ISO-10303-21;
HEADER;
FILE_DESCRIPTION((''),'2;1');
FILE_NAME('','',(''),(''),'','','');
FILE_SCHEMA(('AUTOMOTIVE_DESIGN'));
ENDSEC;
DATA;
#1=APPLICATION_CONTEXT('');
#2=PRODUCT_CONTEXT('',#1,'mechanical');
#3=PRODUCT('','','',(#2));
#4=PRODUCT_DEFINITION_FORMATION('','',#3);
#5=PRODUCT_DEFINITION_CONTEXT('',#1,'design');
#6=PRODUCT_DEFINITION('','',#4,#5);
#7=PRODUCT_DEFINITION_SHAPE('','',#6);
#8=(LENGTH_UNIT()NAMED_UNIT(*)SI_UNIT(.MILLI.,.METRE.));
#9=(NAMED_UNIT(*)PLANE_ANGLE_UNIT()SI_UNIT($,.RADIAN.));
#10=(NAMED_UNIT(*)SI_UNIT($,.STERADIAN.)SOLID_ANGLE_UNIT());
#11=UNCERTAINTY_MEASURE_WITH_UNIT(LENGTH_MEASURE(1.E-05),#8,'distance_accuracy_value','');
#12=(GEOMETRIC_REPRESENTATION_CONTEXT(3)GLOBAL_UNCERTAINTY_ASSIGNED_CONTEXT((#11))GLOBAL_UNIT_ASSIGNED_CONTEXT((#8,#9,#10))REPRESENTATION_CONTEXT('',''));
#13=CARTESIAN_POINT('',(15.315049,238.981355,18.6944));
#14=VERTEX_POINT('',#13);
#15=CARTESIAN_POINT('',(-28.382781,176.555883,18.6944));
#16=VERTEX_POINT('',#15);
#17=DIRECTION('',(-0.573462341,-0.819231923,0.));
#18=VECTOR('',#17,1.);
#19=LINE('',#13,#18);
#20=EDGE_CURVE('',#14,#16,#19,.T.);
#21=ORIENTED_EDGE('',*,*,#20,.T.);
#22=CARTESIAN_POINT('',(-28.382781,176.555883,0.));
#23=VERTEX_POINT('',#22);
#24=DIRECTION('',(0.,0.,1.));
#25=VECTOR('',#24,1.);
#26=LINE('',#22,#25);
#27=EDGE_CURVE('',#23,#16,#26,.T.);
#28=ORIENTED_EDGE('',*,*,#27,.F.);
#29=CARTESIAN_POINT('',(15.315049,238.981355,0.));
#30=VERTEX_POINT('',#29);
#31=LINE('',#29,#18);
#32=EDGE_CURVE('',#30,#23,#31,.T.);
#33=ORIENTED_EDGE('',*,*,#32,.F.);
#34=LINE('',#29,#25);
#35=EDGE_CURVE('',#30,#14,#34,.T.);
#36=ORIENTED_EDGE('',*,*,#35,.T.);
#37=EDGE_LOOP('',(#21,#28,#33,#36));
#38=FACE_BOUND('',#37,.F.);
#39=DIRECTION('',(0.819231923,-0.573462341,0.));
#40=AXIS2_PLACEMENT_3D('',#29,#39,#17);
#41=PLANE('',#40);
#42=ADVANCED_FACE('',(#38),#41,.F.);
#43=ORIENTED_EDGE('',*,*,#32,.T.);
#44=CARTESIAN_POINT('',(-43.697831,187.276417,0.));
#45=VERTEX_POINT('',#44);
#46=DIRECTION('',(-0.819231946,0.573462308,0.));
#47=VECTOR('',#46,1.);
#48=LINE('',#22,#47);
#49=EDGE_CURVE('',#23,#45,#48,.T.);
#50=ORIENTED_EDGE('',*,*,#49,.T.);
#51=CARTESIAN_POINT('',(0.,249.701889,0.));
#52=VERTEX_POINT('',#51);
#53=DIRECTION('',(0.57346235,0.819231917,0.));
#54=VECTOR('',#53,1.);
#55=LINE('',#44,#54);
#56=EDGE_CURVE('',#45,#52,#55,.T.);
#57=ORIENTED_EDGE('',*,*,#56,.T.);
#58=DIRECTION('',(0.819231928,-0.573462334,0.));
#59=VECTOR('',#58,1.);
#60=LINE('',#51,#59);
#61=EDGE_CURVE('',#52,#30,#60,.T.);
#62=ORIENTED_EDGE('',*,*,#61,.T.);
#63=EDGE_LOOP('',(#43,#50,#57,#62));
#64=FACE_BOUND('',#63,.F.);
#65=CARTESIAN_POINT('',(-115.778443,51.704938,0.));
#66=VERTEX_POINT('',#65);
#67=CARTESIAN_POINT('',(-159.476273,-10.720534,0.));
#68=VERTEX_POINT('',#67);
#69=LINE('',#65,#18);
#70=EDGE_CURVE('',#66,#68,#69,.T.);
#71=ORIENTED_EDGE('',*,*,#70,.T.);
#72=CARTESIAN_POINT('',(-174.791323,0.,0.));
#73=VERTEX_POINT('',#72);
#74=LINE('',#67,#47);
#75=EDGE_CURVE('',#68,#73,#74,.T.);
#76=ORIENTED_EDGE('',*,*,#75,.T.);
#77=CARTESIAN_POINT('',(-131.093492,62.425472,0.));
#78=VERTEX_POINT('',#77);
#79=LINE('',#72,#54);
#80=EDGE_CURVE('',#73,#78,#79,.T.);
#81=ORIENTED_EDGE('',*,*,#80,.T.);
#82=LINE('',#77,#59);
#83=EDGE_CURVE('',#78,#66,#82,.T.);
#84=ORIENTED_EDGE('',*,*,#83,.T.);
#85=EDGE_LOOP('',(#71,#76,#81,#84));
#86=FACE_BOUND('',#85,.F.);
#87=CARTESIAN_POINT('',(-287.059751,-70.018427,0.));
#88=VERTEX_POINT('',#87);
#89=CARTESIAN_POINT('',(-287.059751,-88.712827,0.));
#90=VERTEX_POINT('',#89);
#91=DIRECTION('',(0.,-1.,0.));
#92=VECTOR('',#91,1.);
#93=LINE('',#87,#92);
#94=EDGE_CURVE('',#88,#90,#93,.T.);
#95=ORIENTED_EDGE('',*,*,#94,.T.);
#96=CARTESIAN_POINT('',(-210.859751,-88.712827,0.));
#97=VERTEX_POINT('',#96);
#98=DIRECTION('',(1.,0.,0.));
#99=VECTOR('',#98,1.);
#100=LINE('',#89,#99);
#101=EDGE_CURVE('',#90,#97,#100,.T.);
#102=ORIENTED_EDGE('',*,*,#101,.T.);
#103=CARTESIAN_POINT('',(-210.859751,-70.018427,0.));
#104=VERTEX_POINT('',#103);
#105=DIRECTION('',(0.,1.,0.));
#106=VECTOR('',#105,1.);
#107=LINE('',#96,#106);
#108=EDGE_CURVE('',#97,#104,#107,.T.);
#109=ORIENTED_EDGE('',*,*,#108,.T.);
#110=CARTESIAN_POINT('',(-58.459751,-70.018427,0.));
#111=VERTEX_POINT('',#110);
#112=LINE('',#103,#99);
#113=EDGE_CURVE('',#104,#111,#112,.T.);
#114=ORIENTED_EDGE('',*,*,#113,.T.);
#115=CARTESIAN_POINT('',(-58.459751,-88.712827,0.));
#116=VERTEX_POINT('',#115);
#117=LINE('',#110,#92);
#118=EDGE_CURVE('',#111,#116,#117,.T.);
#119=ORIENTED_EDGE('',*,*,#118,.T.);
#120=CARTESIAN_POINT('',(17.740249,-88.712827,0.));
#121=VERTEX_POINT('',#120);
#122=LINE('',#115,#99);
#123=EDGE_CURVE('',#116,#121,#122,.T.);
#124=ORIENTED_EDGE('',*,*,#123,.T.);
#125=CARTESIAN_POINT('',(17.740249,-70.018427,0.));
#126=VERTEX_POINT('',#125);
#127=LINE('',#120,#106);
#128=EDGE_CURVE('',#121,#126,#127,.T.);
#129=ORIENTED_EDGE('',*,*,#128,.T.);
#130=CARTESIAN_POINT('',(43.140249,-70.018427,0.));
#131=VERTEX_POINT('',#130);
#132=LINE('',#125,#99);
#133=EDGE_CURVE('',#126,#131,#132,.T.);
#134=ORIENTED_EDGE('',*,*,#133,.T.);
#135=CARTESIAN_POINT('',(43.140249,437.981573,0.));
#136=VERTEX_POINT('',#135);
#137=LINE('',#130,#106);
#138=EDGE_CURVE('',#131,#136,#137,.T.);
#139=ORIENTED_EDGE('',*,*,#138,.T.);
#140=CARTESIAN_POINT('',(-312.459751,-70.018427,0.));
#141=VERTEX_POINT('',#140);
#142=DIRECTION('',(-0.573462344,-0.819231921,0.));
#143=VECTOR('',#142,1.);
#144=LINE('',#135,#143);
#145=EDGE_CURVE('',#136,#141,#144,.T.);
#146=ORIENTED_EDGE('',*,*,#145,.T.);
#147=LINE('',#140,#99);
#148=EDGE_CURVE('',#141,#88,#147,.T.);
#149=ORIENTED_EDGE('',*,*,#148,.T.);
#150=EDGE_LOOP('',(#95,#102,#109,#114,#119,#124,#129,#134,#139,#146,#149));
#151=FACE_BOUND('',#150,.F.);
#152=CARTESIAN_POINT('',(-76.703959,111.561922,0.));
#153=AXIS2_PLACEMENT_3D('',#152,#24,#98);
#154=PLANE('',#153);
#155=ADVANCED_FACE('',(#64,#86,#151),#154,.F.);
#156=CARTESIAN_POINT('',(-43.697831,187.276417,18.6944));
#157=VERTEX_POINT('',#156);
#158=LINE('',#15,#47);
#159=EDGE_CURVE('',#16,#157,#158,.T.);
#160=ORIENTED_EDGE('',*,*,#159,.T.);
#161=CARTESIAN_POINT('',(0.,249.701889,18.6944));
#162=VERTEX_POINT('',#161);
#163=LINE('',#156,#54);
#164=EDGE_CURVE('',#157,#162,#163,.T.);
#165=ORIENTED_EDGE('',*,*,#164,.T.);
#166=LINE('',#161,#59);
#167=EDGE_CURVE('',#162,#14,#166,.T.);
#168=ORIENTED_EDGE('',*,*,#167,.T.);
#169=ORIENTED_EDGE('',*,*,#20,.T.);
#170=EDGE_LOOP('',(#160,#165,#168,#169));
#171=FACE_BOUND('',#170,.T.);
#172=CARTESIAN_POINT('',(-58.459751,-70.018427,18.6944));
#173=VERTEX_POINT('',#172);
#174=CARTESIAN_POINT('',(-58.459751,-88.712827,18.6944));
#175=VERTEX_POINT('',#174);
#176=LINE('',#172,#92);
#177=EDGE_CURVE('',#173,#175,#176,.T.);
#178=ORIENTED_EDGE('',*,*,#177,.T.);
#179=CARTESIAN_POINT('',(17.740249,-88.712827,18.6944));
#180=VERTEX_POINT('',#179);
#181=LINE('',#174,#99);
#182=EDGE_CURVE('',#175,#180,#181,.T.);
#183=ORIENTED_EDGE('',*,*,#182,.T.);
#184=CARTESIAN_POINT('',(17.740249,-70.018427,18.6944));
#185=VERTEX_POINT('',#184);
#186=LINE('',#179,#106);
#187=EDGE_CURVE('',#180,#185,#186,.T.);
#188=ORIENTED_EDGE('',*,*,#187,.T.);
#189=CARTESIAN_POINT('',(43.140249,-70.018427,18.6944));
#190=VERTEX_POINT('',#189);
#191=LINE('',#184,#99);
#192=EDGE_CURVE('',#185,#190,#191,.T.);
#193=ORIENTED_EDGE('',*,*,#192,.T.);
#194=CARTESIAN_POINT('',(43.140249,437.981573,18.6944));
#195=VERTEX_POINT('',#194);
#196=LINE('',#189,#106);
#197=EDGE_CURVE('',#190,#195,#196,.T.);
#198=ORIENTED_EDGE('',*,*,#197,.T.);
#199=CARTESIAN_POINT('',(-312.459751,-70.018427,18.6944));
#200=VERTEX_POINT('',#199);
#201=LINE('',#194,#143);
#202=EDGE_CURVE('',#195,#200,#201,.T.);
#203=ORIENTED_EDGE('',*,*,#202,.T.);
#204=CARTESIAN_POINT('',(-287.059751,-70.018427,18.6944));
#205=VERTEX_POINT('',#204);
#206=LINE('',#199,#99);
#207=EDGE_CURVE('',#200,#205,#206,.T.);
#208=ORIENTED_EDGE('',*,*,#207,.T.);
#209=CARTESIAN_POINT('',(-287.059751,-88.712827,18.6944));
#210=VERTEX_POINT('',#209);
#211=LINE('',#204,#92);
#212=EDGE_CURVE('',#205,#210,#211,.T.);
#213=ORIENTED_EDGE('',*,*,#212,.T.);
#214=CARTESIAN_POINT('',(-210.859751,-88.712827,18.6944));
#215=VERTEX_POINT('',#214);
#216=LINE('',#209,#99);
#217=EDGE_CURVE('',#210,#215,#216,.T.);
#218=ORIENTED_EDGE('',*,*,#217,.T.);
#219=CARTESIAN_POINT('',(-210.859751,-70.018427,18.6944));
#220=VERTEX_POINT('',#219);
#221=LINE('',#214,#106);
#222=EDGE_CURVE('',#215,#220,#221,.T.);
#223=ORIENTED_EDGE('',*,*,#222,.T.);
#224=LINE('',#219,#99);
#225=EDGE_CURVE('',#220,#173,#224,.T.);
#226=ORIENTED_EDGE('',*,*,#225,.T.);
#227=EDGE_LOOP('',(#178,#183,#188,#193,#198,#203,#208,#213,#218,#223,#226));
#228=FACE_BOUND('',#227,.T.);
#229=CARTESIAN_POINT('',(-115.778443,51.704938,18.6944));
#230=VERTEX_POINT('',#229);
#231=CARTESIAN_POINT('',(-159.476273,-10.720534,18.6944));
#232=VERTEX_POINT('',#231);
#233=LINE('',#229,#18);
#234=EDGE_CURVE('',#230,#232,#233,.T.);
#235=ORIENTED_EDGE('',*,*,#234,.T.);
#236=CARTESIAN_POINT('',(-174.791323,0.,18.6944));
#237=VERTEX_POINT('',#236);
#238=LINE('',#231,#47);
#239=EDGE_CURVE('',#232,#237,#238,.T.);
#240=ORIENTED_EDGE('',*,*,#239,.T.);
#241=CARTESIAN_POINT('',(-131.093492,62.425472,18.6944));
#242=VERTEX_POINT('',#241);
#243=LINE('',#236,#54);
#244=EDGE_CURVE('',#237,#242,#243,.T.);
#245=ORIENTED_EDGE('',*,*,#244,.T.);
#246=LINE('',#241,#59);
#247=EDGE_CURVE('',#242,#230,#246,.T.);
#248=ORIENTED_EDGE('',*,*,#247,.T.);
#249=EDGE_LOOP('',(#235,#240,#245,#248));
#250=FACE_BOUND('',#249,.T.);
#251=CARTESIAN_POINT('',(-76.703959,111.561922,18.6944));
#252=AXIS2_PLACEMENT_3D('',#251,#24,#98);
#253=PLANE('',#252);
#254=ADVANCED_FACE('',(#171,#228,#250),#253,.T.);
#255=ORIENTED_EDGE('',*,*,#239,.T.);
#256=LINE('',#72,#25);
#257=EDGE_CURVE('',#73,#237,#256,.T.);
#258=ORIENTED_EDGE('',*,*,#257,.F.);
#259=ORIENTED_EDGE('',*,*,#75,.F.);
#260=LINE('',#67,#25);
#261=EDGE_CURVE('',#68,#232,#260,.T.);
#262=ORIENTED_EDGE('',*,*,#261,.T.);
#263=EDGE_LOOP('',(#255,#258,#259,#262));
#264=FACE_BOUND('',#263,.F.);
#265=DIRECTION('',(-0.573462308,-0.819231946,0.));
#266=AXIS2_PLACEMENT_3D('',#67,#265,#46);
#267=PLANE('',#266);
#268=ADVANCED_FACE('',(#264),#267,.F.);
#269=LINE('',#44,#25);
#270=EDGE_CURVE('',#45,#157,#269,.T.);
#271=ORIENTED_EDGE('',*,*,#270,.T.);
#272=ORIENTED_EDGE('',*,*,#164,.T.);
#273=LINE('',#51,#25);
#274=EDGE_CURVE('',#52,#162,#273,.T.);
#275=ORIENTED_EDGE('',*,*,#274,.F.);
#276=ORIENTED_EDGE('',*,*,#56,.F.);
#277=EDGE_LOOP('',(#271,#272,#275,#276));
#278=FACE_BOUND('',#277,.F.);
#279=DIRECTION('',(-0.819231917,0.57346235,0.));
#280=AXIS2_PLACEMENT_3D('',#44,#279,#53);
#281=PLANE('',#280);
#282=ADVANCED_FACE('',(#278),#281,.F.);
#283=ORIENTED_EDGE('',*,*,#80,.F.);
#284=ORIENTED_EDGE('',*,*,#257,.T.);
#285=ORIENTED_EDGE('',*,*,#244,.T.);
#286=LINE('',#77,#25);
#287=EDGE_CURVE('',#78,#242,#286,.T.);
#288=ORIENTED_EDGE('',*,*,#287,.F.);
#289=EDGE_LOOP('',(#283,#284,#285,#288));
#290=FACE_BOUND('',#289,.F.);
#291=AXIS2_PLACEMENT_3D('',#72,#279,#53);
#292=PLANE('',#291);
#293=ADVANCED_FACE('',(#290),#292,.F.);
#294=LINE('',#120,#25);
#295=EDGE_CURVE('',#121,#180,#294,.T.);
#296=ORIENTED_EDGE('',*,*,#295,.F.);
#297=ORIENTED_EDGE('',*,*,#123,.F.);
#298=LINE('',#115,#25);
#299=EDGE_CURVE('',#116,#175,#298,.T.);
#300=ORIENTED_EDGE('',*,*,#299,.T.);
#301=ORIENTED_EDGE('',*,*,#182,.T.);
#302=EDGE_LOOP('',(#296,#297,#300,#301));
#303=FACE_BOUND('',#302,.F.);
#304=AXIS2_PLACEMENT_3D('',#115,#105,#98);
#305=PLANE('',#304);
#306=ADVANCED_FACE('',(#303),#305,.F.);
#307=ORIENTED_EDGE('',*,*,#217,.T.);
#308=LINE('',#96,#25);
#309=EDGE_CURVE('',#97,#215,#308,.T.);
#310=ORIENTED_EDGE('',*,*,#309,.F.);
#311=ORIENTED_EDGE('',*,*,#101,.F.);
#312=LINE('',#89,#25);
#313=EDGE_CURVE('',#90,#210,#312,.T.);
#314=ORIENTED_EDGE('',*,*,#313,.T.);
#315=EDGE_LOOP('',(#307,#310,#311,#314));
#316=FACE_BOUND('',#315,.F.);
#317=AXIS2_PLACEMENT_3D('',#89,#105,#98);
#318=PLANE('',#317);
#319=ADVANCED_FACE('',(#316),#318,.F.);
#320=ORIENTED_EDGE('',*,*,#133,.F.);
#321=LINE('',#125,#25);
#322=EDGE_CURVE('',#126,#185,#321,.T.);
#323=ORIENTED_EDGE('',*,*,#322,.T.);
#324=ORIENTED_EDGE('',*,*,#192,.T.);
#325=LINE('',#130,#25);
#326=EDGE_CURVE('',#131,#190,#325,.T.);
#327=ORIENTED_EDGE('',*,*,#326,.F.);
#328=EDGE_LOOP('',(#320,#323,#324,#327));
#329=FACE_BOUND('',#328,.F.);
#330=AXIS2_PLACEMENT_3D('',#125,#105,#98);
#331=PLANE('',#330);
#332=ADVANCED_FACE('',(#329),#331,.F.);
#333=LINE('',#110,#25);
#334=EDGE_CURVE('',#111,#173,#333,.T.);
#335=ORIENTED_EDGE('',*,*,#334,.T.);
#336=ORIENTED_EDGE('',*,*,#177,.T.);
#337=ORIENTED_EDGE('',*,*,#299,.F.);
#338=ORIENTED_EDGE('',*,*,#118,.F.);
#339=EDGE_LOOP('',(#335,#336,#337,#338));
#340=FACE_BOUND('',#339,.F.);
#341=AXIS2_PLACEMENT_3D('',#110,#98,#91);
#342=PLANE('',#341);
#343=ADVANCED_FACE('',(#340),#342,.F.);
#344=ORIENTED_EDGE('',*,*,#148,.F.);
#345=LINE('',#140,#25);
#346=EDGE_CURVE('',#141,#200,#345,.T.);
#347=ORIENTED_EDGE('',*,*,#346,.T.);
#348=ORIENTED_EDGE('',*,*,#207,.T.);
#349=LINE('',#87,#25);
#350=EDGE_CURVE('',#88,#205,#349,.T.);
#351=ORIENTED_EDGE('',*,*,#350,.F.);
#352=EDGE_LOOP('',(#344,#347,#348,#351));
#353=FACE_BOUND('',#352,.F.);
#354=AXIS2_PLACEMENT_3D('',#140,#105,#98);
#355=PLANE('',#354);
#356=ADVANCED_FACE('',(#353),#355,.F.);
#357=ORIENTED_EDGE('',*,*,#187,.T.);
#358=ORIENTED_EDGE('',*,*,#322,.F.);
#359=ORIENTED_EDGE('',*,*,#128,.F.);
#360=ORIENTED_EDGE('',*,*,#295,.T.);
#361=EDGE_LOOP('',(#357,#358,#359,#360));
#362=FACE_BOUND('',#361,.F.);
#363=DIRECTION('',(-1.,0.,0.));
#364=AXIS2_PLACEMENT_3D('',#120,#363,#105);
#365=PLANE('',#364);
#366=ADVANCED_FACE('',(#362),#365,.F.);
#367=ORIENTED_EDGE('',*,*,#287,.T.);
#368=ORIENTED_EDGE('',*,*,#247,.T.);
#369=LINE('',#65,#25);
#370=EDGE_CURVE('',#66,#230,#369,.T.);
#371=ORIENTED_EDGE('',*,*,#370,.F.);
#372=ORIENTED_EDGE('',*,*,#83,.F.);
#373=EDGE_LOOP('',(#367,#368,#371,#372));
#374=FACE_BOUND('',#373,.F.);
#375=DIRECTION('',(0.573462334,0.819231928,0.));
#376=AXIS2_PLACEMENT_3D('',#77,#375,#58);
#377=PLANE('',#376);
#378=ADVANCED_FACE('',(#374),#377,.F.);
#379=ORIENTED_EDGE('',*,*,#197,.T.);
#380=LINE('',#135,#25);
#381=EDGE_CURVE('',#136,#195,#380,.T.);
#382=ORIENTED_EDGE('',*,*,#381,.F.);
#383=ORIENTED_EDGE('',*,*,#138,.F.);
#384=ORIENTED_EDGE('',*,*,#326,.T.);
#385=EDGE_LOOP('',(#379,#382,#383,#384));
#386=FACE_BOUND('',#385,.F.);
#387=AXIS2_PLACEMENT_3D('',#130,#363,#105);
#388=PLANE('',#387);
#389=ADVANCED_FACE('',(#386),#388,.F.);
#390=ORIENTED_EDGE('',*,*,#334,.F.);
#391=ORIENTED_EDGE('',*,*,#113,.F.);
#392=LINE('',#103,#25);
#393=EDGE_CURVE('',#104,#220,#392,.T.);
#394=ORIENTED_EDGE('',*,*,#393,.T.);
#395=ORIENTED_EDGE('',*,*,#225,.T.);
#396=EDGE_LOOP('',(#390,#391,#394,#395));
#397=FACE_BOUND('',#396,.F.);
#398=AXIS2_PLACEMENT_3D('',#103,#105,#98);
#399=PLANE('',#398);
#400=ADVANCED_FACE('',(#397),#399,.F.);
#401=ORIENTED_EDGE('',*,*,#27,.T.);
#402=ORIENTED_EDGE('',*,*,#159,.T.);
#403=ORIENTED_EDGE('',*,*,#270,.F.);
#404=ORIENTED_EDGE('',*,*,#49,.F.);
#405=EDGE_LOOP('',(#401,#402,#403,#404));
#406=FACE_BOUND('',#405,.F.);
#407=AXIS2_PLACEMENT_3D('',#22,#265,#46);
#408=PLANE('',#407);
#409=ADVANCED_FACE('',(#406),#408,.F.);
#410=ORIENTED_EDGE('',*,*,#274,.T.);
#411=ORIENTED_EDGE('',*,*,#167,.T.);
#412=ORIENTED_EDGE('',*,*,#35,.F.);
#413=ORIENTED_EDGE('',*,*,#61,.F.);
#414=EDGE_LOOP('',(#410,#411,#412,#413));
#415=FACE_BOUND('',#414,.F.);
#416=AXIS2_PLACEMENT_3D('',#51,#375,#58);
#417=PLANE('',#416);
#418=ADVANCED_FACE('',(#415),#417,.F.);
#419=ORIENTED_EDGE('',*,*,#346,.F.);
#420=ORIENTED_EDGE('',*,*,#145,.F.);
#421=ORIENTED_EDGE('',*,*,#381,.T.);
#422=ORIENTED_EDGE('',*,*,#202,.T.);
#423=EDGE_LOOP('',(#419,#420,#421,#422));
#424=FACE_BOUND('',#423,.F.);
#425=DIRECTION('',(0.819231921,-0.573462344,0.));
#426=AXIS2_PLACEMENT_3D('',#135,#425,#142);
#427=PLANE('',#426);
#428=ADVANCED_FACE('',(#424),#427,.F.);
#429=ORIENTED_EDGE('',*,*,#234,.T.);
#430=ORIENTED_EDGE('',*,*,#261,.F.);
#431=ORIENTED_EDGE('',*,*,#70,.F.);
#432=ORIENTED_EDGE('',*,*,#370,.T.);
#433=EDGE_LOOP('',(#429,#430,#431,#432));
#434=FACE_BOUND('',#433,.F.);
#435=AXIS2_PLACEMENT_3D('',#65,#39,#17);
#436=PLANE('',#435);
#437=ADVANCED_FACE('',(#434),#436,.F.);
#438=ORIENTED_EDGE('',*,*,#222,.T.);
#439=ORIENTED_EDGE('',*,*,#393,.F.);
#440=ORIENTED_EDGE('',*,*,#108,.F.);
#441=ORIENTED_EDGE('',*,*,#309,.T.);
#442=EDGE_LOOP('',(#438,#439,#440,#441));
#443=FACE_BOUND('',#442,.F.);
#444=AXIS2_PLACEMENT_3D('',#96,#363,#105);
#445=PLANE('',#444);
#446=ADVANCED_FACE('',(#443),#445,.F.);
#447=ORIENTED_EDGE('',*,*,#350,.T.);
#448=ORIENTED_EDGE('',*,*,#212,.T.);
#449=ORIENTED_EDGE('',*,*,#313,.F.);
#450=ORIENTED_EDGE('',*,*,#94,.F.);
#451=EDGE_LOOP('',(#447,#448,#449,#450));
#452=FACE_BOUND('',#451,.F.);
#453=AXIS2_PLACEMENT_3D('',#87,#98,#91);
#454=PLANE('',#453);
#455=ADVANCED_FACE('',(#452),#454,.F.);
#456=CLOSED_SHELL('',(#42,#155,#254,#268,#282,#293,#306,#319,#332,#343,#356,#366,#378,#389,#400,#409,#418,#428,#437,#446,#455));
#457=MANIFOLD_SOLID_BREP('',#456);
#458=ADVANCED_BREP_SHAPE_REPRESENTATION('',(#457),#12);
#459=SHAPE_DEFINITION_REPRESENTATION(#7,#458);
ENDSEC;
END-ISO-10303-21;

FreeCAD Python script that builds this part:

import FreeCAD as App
import Part
import Sketcher
from FreeCAD import Vector
Q = App.Units.Quantity


def add_polygon(sketch, points):
    """Adds a closed chain of lines whose ends are joined by coincident constraints."""
    first, n = sketch.GeometryCount, len(points)
    for a, b in zip(points, points[1:] + points[:1]):
        sketch.addGeometry(Part.LineSegment(App.Vector(*a, 0), App.Vector(*b, 0)), False)
    for i in range(n):
        sketch.addConstraint(Sketcher.Constraint("Coincident", first + i, 2, first + (i + 1) % n, 1))

doc = App.newDocument("Part")
body = doc.addObject("PartDesign::Body", "Body")

sketch1 = body.newObject("Sketcher::SketchObject", "Sketch")
sketch1.AttachmentSupport = (doc.getObject("XY_Plane"), [""])
sketch1.MapMode = "FlatFace"
add_polygon(sketch1, [(43, 438), (-312, -70), (-287, -70), (-287, -89), (-211, -89), (-211, -70), (-58, -70), (-58, -89), (18, -89), (18, -70), (43, -70)])
add_polygon(sketch1, [(-116, 52), (-159, -11), (-175, 0), (-131, 62)])
add_polygon(sketch1, [(-44, 187), (0, 250), (15, 239), (-28, 177)])
sketch1.addConstraint(Sketcher.Constraint("Horizontal", 1))
sketch1.addConstraint(Sketcher.Constraint("Vertical", 2))
sketch1.addConstraint(Sketcher.Constraint("Horizontal", 3))
sketch1.addConstraint(Sketcher.Constraint("Vertical", 4))
sketch1.addConstraint(Sketcher.Constraint("Horizontal", 5))
sketch1.addConstraint(Sketcher.Constraint("Vertical", 6))
sketch1.addConstraint(Sketcher.Constraint("Horizontal", 7))
sketch1.addConstraint(Sketcher.Constraint("Vertical", 8))
sketch1.addConstraint(Sketcher.Constraint("Horizontal", 9))
sketch1.addConstraint(Sketcher.Constraint("Vertical", 10))
sketch1.addConstraint(Sketcher.Constraint("PointOnObject", 12, 2, -1))
sketch1.addConstraint(Sketcher.Constraint("PointOnObject", 15, 2, -2))
sketch1.addConstraint(Sketcher.Constraint("Parallel", 0, 11))
sketch1.addConstraint(Sketcher.Constraint("Perpendicular", 11, 12))
sketch1.addConstraint(Sketcher.Constraint("Perpendicular", 12, 13))
sketch1.addConstraint(Sketcher.Constraint("Perpendicular", 13, 14))
sketch1.addConstraint(Sketcher.Constraint("Perpendicular", 14, 15))
sketch1.addConstraint(Sketcher.Constraint("Perpendicular", 15, 16))
sketch1.addConstraint(Sketcher.Constraint("Perpendicular", 16, 17))
sketch1.addConstraint(Sketcher.Constraint("Perpendicular", 17, 18))
sketch1.addConstraint(Sketcher.Constraint("Horizontal", 1, 2, 4, 2))
sketch1.addConstraint(Sketcher.Constraint("Horizontal", 3, 2, 6, 2))
sketch1.addConstraint(Sketcher.Constraint("Horizontal", 5, 2, 8, 2))
sketch1.addConstraint(Sketcher.Constraint("Equal", 3, 7))
sketch1.addConstraint(Sketcher.Constraint("Equal", 1, 9))
sketch1.addConstraint(Sketcher.Constraint("Equal", 13, 15))
sketch1.addConstraint(Sketcher.Constraint("Equal", 14, 16))
sketch1.addConstraint(Sketcher.Constraint("DistanceX", 1, 1, 1, 2, Q("1 in")))
sketch1.addConstraint(Sketcher.Constraint("DistanceX", 3, 1, 3, 2, Q("3 in")))
sketch1.addConstraint(Sketcher.Constraint("DistanceX", 5, 1, 5, 2, Q("6 in")))
sketch1.addConstraint(Sketcher.Constraint("DistanceY", 10, 1, 10, 2, Q("20 in")))
sketch1.addConstraint(Sketcher.Constraint("Distance", 11, Q("3 in")))
sketch1.addConstraint(Sketcher.Constraint("DistanceY", 2, 2, 2, 1, Q("0.736 in")))
sketch1.addConstraint(Sketcher.Constraint("Distance", 12, Q("0.736 in")))
sketch1.addConstraint(Sketcher.Constraint("DistanceY", 5, 2, 13, 2, Q("132.443899 mm")))
sketch1.addConstraint(Sketcher.Constraint("DistanceX", 16, 2, 10, 2, Q("27.8252 mm")))
sketch1.addConstraint(Sketcher.Constraint("DistanceX", 13, 2, -1, 1, Q("131.093492 mm")))
sketch1.addConstraint(Sketcher.Constraint("DistanceY", -1, 1, 15, 2, Q("249.701889 mm")))
pad1 = body.newObject("PartDesign::Pad", "Pad")
pad1.Profile = sketch1
pad1.Length = Q("0.736 in")

doc.recompute()
